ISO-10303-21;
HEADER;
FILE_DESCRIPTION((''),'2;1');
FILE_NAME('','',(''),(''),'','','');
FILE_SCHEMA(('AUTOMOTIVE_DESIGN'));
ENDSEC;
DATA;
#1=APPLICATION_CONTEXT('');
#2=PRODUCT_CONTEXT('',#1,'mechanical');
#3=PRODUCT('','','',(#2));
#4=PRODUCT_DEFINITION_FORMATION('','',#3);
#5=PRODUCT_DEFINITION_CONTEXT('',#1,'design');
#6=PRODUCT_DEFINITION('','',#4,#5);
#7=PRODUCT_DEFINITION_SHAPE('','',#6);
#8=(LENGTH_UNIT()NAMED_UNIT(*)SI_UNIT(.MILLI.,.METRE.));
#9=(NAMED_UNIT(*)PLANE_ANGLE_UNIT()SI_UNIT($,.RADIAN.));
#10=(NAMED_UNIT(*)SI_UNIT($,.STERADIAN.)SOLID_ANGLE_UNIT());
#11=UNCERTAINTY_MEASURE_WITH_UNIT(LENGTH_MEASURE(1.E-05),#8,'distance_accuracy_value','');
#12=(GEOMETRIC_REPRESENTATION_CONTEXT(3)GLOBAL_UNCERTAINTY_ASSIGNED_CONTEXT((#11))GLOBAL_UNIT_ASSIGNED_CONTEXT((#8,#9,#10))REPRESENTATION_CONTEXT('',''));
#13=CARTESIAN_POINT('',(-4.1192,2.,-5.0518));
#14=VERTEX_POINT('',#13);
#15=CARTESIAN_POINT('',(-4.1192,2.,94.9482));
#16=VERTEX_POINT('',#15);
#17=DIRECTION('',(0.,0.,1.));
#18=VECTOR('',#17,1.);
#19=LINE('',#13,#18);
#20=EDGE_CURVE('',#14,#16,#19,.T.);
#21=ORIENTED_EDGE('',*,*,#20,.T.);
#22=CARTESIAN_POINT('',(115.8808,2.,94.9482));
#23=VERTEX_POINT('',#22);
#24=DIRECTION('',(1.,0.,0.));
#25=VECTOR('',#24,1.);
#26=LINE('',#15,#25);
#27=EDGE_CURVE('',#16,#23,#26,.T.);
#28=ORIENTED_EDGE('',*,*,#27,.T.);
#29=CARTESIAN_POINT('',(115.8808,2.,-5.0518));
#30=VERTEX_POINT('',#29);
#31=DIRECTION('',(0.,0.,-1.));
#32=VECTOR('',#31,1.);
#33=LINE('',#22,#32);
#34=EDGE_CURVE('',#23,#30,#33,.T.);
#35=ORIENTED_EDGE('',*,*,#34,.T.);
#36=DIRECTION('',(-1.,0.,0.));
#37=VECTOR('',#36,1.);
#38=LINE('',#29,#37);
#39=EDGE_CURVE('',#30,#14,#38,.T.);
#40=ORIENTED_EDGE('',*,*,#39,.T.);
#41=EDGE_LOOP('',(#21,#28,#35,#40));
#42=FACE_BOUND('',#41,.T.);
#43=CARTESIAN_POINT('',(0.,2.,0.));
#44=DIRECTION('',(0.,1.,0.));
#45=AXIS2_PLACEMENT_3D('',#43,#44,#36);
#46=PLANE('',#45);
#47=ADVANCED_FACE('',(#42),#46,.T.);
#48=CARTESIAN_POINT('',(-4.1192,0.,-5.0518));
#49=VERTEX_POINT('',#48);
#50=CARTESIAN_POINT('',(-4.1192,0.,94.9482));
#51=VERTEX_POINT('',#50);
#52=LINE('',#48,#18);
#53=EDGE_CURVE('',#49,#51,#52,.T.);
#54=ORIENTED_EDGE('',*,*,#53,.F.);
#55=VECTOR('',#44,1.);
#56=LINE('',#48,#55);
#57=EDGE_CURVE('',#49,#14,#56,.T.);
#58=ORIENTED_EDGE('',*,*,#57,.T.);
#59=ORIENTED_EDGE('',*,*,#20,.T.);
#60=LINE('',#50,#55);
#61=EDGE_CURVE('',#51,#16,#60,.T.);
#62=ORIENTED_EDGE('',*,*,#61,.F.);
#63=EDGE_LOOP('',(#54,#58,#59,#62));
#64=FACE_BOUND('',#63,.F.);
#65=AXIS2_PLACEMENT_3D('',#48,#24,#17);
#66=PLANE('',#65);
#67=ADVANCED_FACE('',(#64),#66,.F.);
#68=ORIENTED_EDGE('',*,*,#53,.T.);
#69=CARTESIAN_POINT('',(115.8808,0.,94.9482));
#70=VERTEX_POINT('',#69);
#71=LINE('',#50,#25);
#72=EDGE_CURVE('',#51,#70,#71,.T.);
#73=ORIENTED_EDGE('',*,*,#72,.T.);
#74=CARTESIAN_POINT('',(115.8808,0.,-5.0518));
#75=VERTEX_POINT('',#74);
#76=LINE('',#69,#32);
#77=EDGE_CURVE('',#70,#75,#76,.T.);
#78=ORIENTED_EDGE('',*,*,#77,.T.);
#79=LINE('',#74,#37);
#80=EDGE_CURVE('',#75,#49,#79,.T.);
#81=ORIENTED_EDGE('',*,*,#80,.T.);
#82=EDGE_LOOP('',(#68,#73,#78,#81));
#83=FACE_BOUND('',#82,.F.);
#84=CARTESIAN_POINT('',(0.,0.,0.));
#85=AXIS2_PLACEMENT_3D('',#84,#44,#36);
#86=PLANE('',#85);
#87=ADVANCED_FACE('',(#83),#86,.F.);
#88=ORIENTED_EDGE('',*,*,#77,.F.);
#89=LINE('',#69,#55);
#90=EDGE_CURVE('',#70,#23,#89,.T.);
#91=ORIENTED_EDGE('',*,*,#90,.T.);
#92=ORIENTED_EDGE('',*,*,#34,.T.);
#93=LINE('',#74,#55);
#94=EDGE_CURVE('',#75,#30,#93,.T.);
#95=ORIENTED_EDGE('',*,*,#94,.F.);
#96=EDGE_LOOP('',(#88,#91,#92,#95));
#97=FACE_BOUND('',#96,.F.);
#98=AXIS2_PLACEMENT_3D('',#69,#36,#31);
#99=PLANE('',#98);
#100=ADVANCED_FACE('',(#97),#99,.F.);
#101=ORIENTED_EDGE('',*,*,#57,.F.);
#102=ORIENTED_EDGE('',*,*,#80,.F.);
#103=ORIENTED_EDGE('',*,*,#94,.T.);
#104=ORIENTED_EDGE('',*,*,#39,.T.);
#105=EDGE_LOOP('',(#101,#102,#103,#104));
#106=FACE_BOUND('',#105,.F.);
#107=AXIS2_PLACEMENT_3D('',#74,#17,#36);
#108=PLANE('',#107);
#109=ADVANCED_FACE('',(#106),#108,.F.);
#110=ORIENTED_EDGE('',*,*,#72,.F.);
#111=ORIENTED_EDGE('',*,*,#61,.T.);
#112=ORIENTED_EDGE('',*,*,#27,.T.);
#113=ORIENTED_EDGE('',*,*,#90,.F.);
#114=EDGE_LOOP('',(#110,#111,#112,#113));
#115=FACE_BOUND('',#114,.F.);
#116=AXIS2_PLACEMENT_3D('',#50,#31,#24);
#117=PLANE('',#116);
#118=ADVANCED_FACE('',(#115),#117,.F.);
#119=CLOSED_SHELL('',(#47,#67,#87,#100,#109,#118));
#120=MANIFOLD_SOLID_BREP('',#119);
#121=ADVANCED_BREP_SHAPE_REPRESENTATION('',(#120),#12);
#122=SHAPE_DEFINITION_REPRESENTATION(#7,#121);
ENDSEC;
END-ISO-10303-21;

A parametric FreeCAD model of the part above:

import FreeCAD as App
import Part
import Sketcher
Q = App.Units.Quantity


def add_polygon(sketch, points):
    """Adds a closed chain of lines whose ends are joined by coincident constraints."""
    first, n = sketch.GeometryCount, len(points)
    for a, b in zip(points, points[1:] + points[:1]):
        sketch.addGeometry(Part.LineSegment(App.Vector(*a, 0), App.Vector(*b, 0)), False)
    for i in range(n):
        sketch.addConstraint(Sketcher.Constraint("Coincident", first + i, 2, first + (i + 1) % n, 1))

doc = App.newDocument("Part")
body = doc.addObject("PartDesign::Body", "Body")

# Sketch on XZ plane
sketch1 = doc.addObject("Sketcher::SketchObject", "Sketch")
body.addObject(sketch1)
sketch1.AttachmentSupport = (doc.XZ_Plane, [""])
sketch1.MapMode = "FlatFace"
add_polygon(sketch1, [(-4.1192, -5.0518), (-4.1192, 94.9482), (115.8808, 94.9482), (115.8808, -5.0518)])  # lines 0-3
sketch1.addConstraint(Sketcher.Constraint("Vertical", 0))
sketch1.addConstraint(Sketcher.Constraint("Horizontal", 1))
sketch1.addConstraint(Sketcher.Constraint("Vertical", 2))
sketch1.addConstraint(Sketcher.Constraint("Horizontal", 3))
sketch1.addConstraint(Sketcher.Constraint("DistanceX", 1, 1, 1, 2, Q("120 mm")))
sketch1.addConstraint(Sketcher.Constraint("DistanceY", 0, 1, 0, 2, Q("100 mm")))
sketch1.addConstraint(Sketcher.Constraint("DistanceX", 0, 2, -1, 1, Q("4.1192 mm")))
sketch1.addConstraint(Sketcher.Constraint("DistanceY", -1, 1, 0, 2, Q("94.9482 mm")))
pad1 = doc.addObject("PartDesign::Pad", "Pad")
body.addObject(pad1)
pad1.Profile = sketch1
pad1.Length = 2
pad1.Reversed = True

doc.recompute()
